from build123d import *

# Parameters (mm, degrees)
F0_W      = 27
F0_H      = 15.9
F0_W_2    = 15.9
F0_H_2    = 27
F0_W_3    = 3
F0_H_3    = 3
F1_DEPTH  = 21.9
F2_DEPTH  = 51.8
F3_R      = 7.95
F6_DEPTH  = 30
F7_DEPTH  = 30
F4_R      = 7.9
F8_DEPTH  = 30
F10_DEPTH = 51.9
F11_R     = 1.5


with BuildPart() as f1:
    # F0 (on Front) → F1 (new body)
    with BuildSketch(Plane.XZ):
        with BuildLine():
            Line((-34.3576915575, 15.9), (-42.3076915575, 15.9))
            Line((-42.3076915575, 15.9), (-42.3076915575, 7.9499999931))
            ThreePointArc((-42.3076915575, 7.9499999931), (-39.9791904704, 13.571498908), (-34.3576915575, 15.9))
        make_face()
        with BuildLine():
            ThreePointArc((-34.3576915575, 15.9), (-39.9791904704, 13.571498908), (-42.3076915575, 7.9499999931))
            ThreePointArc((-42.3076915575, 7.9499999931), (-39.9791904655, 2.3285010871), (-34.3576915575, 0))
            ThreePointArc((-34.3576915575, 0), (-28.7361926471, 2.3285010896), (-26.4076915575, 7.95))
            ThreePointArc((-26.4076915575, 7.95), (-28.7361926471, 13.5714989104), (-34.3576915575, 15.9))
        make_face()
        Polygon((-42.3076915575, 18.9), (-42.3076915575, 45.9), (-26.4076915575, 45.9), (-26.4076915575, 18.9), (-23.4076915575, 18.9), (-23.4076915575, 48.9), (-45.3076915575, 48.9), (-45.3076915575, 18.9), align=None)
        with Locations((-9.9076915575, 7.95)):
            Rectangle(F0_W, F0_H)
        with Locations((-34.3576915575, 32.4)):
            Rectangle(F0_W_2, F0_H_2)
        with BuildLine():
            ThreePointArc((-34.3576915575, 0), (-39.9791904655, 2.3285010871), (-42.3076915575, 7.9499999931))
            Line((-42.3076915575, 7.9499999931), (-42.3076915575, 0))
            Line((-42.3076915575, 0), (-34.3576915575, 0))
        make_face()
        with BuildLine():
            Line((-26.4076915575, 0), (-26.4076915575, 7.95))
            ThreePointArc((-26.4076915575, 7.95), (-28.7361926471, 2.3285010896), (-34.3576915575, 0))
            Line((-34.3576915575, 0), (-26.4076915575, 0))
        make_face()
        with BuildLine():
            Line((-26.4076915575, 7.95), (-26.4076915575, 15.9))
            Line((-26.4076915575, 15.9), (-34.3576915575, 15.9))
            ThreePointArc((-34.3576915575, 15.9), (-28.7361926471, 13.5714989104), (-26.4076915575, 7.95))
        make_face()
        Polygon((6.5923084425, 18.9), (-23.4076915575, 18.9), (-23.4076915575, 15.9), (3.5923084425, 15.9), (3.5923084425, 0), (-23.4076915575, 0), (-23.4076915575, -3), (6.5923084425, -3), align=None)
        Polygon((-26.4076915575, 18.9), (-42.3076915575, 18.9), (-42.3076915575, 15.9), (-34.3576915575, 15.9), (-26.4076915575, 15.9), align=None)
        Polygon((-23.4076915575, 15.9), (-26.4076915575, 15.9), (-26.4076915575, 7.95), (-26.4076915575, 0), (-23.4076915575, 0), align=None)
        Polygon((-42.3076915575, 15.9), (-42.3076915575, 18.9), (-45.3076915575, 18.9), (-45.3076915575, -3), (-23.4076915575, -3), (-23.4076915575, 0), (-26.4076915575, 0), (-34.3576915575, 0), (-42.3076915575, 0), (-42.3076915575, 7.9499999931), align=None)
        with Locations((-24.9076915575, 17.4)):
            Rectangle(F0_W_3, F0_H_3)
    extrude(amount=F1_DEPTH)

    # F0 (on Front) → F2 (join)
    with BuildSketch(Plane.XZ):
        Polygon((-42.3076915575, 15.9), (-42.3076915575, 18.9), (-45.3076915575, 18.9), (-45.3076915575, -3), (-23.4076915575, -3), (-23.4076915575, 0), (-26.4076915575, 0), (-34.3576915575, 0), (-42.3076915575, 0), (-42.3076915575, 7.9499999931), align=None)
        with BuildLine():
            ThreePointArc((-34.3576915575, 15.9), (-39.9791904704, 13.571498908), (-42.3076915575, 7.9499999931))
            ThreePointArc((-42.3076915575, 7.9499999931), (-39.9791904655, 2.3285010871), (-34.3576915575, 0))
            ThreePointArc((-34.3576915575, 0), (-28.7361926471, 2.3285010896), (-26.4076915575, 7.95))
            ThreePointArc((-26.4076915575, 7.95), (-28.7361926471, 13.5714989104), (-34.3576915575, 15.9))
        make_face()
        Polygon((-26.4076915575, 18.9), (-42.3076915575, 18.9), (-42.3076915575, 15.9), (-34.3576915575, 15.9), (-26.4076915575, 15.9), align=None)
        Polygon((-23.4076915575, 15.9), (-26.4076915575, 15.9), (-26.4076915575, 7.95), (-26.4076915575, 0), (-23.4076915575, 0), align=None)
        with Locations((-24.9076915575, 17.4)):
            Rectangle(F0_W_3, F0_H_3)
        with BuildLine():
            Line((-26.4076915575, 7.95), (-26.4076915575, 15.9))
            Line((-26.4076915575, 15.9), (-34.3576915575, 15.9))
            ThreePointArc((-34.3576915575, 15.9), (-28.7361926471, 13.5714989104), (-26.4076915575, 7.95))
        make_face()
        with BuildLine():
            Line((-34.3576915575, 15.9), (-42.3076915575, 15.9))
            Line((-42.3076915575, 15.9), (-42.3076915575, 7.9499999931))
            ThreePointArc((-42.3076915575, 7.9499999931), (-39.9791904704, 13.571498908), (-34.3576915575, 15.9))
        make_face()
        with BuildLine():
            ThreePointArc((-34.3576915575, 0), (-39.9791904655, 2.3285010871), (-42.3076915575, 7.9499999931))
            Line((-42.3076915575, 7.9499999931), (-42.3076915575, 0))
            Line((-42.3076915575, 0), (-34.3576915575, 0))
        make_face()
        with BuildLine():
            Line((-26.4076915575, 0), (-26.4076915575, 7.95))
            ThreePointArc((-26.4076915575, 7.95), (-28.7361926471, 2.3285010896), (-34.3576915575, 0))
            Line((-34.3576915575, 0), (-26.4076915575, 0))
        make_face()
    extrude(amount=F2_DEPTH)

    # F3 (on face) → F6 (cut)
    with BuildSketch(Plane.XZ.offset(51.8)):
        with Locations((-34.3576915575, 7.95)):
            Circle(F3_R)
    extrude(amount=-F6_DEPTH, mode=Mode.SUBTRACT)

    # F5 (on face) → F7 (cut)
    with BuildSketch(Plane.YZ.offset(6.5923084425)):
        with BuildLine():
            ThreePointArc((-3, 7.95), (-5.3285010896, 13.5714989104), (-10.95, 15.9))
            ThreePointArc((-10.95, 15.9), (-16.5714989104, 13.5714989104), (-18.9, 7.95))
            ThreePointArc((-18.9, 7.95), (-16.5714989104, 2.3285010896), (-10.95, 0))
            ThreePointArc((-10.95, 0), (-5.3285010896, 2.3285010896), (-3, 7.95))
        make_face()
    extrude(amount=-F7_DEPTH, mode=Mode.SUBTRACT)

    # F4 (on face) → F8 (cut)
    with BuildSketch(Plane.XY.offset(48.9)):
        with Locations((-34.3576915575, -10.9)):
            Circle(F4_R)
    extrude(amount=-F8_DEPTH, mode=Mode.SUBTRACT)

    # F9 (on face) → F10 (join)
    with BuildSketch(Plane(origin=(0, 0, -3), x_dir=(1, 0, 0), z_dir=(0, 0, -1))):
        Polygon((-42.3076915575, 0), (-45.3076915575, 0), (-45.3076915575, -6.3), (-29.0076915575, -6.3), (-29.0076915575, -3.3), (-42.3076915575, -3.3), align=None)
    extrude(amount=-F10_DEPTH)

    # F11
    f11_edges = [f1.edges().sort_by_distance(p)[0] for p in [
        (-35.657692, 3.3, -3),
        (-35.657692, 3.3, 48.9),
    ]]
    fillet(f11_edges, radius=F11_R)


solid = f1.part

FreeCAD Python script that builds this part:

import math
import FreeCAD as App
import Part
import Sketcher
from FreeCAD import Vector
Q = App.Units.Quantity


def edges_at(feature, points):
    """Names of the edges that pass closest to the given points."""
    edges = feature.Shape.Edges
    near = lambda p: min(range(len(edges)), key=lambda i: edges[i].distToShape(Part.Vertex(*p))[0])
    return sorted({f"Edge{near(p) + 1}" for p in points})


def add_polygon(sketch, points):
    """Adds a closed chain of lines whose ends are joined by coincident constraints."""
    first, n = sketch.GeometryCount, len(points)
    for a, b in zip(points, points[1:] + points[:1]):
        sketch.addGeometry(Part.LineSegment(App.Vector(*a, 0), App.Vector(*b, 0)), False)
    for i in range(n):
        sketch.addConstraint(Sketcher.Constraint("Coincident", first + i, 2, first + (i + 1) % n, 1))

doc = App.newDocument("Part")
body = doc.addObject("PartDesign::Body", "Body")

# Sketch on XZ plane
sketch1 = body.newObject("Sketcher::SketchObject", "Sketch")
sketch1.AttachmentSupport = (doc.getObject("XZ_Plane"), [""])
sketch1.MapMode = "FlatFace"
add_polygon(sketch1, [(7, 19), (-23, 19), (-23, 49), (-45, 49), (-45, -3), (7, -3)])  # lines 0-5
sketch1.addConstraint([
    Sketcher.Constraint("Horizontal", 0),
    Sketcher.Constraint("Vertical", 1),
    Sketcher.Constraint("Horizontal", 2),
    Sketcher.Constraint("Vertical", 3),
    Sketcher.Constraint("Horizontal", 4),
    Sketcher.Constraint("Vertical", 5),
    Sketcher.Constraint("Equal", 0, 1),
    Sketcher.Constraint("Equal", 4, 3),
    Sketcher.Constraint("DistanceX", 0, 2, 0, 1, Q("30 mm")),
    Sketcher.Constraint("DistanceX", 2, 2, 2, 1, Q("21.9 mm")),
    Sketcher.Constraint("DistanceY", 3, 2, -1, 1, Q("3 mm")),
    Sketcher.Constraint("DistanceX", 0, 2, -1, 1, Q("23.407692 mm")),
])
pad1 = body.newObject("PartDesign::Pad", "Pad")
pad1.Profile = sketch1
pad1.Length = 21.9

# Sketch on XZ plane
sketch2 = body.newObject("Sketcher::SketchObject", "Sketch001")
sketch2.AttachmentSupport = (doc.getObject("XZ_Plane"), [""])
sketch2.MapMode = "FlatFace"
add_polygon(sketch2, [(-23, -3), (-23, 19), (-45, 19), (-45, -3)])  # lines 0-3
sketch2.addConstraint([
    Sketcher.Constraint("Vertical", 0),
    Sketcher.Constraint("Horizontal", 1),
    Sketcher.Constraint("Vertical", 2),
    Sketcher.Constraint("Horizontal", 3),
    Sketcher.Constraint("Equal", 3, 0),
    Sketcher.Constraint("DistanceX", 1, 2, 1, 1, Q("21.9 mm")),
    Sketcher.Constraint("DistanceY", 2, 2, -1, 1, Q("3 mm")),
    Sketcher.Constraint("DistanceX", 0, 2, -1, 1, Q("23.407692 mm")),
])
pad2 = body.newObject("PartDesign::Pad", "Pad001")
pad2.Profile = sketch2
pad2.Length = 51.8

# Sketch on XZ plane
sketch3 = body.newObject("Sketcher::SketchObject", "Sketch002")
sketch3.AttachmentSupport = (doc.getObject("XZ_Plane"), [""])
sketch3.MapMode = "FlatFace"
sketch3.AttachmentOffset = App.Placement(Vector(0, 0, 51.8), App.Rotation())
sketch3.addGeometry(Part.Circle(Vector(-34, 8, 0), Vector(0, 0, 1), 8), False)
sketch3.addConstraint([
    Sketcher.Constraint("Diameter", 0, Q("15.9 mm")),
    Sketcher.Constraint("DistanceY", -1, 1, 0, 3, Q("7.95 mm")),
    Sketcher.Constraint("DistanceX", 0, 3, -1, 1, Q("34.357692 mm")),
])
pocket1 = body.newObject("PartDesign::Pocket", "Pocket")
pocket1.Profile = sketch3
pocket1.Length = 30

# Sketch on YZ plane
sketch4 = body.newObject("Sketcher::SketchObject", "Sketch003")
sketch4.AttachmentSupport = (doc.getObject("YZ_Plane"), [""])
sketch4.MapMode = "FlatFace"
sketch4.AttachmentOffset = App.Placement(Vector(0, 0, 6.592308), App.Rotation())
sketch4.addGeometry([
    Part.ArcOfCircle(Part.Circle(Vector(-11, 8, 0), Vector(0, 0, 1), 8), math.radians(0), math.radians(90)),
    Part.ArcOfCircle(Part.Circle(Vector(-11, 8, 0), Vector(0, 0, 1), 8), math.radians(90), math.radians(180)),
    Part.ArcOfCircle(Part.Circle(Vector(-11, 8, 0), Vector(0, 0, 1), 8), math.radians(180), math.radians(270)),
    Part.ArcOfCircle(Part.Circle(Vector(-11, 8, 0), Vector(0, 0, 1), 8), math.radians(-90), math.radians(0)),
], False)
sketch4.addConstraint([
    Sketcher.Constraint("Tangent", 0, 2, 1, 1),
    Sketcher.Constraint("Tangent", 1, 2, 2, 1),
    Sketcher.Constraint("Tangent", 2, 2, 3, 1),
    Sketcher.Constraint("Tangent", 3, 2, 0, 1),
    Sketcher.Constraint("Equal", 0, 1),
    Sketcher.Constraint("PointOnObject", 2, 2, -1),
    Sketcher.Constraint("Horizontal", 3, 3, 1, 2),
    Sketcher.Constraint("Horizontal", 1, 2, 3, 2),
    Sketcher.Constraint("Vertical", 3, 3, 0, 2),
    Sketcher.Constraint("Vertical", 0, 2, 2, 2),
    Sketcher.Constraint("Radius", 0, Q("7.95 mm")),
    Sketcher.Constraint("DistanceX", 3, 2, -1, 1, Q("3 mm")),
])
pocket2 = body.newObject("PartDesign::Pocket", "Pocket001")
pocket2.Profile = sketch4
pocket2.Length = 30

# Sketch on XY plane
sketch5 = body.newObject("Sketcher::SketchObject", "Sketch004")
sketch5.AttachmentSupport = (doc.getObject("XY_Plane"), [""])
sketch5.MapMode = "FlatFace"
sketch5.AttachmentOffset = App.Placement(Vector(0, 0, 48.9), App.Rotation())
sketch5.addGeometry(Part.Circle(Vector(-34, -11, 0), Vector(0, 0, 1), 8), False)
sketch5.addConstraint([
    Sketcher.Constraint("Diameter", 0, Q("15.8 mm")),
    Sketcher.Constraint("DistanceY", 0, 3, -1, 1, Q("10.9 mm")),
    Sketcher.Constraint("DistanceX", 0, 3, -1, 1, Q("34.357692 mm")),
])
pocket3 = body.newObject("PartDesign::Pocket", "Pocket002")
pocket3.Profile = sketch5
pocket3.Length = 30

# Sketch on XY plane
sketch6 = body.newObject("Sketcher::SketchObject", "Sketch005")
sketch6.AttachmentSupport = (doc.getObject("XY_Plane"), [""])
sketch6.MapMode = "FlatFace"
sketch6.AttachmentOffset = App.Placement(Vector(0, 0, -3), App.Rotation())
add_polygon(sketch6, [(-42.3, 0), (-45.3, 0), (-45.3, 6.3), (-29, 6.3), (-29, 3.3), (-42.3, 3.3)])  # lines 0-5
sketch6.addConstraint([
    Sketcher.Constraint("Horizontal", 0),
    Sketcher.Constraint("Vertical", 1),
    Sketcher.Constraint("Horizontal", 2),
    Sketcher.Constraint("Vertical", 3),
    Sketcher.Constraint("Horizontal", 4),
    Sketcher.Constraint("Vertical", 5),
    Sketcher.Constraint("PointOnObject", 0, 2, -1),
    Sketcher.Constraint("Equal", 0, 3),
    Sketcher.Constraint("DistanceX", 0, 2, 0, 1, Q("3 mm")),
    Sketcher.Constraint("DistanceX", 2, 1, 2, 2, Q("16.3 mm")),
    Sketcher.Constraint("DistanceY", 1, 1, 1, 2, Q("6.3 mm")),
    Sketcher.Constraint("DistanceX", 0, 2, -1, 1, Q("45.307692 mm")),
])
pad3 = body.newObject("PartDesign::Pad", "Pad002")
pad3.Profile = sketch6
pad3.Length = 51.9
doc.recompute()

fillet = body.newObject("PartDesign::Fillet", "Fillet")
fillet.Base = (pad3, edges_at(pad3, [(-35.658, 3.3, -3), (-35.658, 3.3, 48.9)]))
fillet.Radius = 1.5

doc.recompute()
